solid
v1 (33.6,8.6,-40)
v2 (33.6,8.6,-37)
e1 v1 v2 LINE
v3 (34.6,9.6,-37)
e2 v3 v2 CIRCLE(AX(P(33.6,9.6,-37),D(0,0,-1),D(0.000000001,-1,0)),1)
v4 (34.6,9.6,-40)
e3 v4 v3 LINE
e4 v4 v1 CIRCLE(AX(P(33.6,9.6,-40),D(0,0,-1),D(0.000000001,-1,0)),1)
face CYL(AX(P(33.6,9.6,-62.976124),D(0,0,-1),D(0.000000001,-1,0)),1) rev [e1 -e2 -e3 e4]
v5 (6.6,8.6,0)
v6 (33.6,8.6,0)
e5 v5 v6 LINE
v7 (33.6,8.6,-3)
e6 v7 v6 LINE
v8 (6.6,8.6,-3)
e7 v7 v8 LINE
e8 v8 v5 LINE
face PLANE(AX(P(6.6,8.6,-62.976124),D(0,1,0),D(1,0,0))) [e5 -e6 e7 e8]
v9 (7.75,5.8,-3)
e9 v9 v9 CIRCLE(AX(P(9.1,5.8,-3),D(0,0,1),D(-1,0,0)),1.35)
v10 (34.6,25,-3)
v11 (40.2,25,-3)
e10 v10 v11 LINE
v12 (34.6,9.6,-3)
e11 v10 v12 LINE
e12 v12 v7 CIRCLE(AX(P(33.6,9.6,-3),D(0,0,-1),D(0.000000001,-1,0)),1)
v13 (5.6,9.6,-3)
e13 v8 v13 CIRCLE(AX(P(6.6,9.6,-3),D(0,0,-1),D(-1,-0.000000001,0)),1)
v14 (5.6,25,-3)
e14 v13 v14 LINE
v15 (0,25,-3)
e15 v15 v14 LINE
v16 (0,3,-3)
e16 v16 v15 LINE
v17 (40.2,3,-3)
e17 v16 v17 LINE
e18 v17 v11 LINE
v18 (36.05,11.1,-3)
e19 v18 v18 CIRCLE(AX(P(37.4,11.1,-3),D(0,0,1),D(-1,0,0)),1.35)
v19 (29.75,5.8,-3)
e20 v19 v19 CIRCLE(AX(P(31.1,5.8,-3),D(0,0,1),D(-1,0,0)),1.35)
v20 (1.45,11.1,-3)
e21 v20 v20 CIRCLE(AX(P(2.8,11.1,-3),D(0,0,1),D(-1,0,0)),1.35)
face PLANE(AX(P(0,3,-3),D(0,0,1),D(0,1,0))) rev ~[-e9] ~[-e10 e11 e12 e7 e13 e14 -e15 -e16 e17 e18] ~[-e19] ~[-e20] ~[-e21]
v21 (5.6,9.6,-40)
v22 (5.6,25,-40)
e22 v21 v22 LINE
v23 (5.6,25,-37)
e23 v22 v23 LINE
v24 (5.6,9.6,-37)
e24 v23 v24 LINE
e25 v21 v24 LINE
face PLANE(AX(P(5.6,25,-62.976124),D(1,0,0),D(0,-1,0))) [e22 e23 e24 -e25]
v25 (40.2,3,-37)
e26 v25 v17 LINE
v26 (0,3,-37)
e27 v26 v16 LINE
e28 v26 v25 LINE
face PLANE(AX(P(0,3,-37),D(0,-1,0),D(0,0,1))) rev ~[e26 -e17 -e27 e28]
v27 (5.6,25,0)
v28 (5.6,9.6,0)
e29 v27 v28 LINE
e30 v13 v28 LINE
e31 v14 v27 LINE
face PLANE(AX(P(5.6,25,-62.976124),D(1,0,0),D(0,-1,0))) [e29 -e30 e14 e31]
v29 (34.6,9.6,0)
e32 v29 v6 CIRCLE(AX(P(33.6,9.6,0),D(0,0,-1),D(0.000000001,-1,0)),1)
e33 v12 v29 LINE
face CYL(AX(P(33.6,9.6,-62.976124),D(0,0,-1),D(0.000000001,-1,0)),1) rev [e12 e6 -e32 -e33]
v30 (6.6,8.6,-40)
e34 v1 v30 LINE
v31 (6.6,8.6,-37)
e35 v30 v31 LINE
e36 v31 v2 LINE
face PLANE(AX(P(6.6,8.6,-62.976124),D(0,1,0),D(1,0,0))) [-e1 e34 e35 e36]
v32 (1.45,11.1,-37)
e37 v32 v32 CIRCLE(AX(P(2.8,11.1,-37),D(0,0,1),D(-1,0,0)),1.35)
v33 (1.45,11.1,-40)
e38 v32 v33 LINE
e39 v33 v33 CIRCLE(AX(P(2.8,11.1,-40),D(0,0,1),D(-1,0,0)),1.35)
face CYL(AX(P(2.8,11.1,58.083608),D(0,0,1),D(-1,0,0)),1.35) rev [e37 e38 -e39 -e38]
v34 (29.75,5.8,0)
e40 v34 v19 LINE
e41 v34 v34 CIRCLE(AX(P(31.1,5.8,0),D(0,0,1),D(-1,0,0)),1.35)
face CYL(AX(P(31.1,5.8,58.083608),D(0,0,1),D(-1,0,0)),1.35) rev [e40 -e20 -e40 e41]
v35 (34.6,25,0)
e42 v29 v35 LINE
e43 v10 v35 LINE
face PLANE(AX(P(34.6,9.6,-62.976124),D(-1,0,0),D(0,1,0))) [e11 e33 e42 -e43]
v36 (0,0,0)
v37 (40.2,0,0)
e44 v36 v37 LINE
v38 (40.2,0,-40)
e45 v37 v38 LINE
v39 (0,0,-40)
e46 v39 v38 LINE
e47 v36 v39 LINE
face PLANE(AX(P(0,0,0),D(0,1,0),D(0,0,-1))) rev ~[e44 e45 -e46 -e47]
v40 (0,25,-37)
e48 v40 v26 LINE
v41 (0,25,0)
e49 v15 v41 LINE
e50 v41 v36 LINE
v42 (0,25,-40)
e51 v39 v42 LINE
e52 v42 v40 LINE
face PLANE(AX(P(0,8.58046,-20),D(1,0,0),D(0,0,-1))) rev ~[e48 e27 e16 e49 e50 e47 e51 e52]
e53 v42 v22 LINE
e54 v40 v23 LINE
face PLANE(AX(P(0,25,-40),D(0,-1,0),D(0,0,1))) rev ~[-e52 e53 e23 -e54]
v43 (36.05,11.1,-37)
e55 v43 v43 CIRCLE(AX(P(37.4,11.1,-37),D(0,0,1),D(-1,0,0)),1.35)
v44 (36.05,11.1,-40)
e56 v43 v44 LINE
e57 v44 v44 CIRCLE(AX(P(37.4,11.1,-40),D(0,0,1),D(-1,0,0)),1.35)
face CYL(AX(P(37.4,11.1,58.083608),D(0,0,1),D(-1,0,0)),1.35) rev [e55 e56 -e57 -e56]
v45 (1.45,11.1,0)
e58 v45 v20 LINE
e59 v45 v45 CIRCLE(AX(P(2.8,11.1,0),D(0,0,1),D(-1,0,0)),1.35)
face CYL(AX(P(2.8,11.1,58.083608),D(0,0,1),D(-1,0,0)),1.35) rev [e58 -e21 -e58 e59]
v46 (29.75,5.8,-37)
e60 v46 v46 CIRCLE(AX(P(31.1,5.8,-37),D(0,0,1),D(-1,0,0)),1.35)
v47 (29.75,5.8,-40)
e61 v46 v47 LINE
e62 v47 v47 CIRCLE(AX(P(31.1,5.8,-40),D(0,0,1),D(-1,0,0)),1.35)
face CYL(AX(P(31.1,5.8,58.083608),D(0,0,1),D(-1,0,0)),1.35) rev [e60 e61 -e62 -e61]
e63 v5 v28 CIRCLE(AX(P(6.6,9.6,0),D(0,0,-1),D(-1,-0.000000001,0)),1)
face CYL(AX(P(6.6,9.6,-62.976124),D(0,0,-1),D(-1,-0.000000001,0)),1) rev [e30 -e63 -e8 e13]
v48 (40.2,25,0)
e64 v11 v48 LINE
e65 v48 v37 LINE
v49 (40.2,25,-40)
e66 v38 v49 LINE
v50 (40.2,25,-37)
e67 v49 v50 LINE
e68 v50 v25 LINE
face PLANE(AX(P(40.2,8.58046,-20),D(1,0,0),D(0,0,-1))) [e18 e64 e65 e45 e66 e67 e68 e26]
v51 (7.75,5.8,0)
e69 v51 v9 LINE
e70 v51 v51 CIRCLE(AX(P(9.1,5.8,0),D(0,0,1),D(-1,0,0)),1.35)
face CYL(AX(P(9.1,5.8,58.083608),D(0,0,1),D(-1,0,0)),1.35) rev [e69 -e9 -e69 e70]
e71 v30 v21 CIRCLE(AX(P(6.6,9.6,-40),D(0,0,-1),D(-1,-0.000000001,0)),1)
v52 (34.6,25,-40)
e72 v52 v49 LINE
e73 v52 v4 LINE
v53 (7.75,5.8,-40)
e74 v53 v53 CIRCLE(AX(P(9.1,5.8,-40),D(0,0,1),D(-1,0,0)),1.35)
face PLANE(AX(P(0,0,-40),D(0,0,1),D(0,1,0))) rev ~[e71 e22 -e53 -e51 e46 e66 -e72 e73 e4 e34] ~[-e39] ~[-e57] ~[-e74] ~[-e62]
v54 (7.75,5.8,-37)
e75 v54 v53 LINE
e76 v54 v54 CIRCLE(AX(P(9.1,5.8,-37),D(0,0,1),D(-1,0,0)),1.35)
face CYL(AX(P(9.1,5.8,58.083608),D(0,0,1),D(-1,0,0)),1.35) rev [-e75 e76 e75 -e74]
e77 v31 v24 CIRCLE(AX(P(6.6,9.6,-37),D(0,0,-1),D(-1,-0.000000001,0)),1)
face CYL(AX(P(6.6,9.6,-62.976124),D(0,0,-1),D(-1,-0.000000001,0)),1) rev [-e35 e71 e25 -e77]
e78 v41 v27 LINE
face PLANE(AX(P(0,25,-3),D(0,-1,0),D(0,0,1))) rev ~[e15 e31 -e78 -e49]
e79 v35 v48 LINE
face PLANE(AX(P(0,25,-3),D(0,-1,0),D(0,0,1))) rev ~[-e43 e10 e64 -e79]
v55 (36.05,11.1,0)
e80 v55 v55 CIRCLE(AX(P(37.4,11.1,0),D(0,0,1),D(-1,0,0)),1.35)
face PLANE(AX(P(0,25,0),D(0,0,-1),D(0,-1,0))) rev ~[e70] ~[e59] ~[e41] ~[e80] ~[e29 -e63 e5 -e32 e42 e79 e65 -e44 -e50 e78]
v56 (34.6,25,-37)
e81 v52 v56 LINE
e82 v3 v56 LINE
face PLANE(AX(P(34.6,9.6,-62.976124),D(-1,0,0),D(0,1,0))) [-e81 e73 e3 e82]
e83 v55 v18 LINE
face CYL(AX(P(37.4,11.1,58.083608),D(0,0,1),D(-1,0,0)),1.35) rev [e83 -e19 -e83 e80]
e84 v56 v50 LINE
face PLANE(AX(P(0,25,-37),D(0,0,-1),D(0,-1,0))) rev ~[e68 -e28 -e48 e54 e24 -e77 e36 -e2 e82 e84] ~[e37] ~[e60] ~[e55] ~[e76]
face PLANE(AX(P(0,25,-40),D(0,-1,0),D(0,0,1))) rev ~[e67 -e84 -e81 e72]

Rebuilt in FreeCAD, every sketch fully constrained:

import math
import FreeCAD as App
import Part
import Sketcher
Q = App.Units.Quantity

doc = App.newDocument("Part")
body = doc.addObject("PartDesign::Body", "Body")

# Sketch on YZ plane
sketch1 = body.newObject("Sketcher::SketchObject", "Sketch")
sketch1.AttachmentSupport = (doc.getObject("YZ_Plane"), [""])
sketch1.MapMode = "FlatFace"
sketch1.addGeometry(Part.LineSegment(App.Vector(25, 0, 0), App.Vector(0, 0, 0)), False)
sketch1.addGeometry(Part.LineSegment(App.Vector(0, 0, 0), App.Vector(0, -40, 0)), False)
sketch1.addGeometry(Part.LineSegment(App.Vector(0, -40, 0), App.Vector(25, -40, 0)), False)
sketch1.addGeometry(Part.LineSegment(App.Vector(25, -40, 0), App.Vector(25, -37, 0)), False)
sketch1.addGeometry(Part.LineSegment(App.Vector(25, -37, 0), App.Vector(3, -37, 0)), False)
sketch1.addGeometry(Part.LineSegment(App.Vector(3, -37, 0), App.Vector(3, -3, 0)), False)
sketch1.addGeometry(Part.LineSegment(App.Vector(3, -3, 0), App.Vector(25, -3, 0)), False)
sketch1.addGeometry(Part.LineSegment(App.Vector(25, -3, 0), App.Vector(25, 0, 0)), False)
sketch1.addConstraint(Sketcher.Constraint("Coincident", 0, 2, 1, 1))
sketch1.addConstraint(Sketcher.Constraint("Coincident", 1, 2, 2, 1))
sketch1.addConstraint(Sketcher.Constraint("Coincident", 2, 2, 3, 1))
sketch1.addConstraint(Sketcher.Constraint("Coincident", 3, 2, 4, 1))
sketch1.addConstraint(Sketcher.Constraint("Coincident", 4, 2, 5, 1))
sketch1.addConstraint(Sketcher.Constraint("Coincident", 5, 2, 6, 1))
sketch1.addConstraint(Sketcher.Constraint("Coincident", 6, 2, 7, 1))
sketch1.addConstraint(Sketcher.Constraint("Coincident", 7, 2, 0, 1))
sketch1.addConstraint(Sketcher.Constraint("Horizontal", 0))
sketch1.addConstraint(Sketcher.Constraint("Vertical", 1))
sketch1.addConstraint(Sketcher.Constraint("Horizontal", 2))
sketch1.addConstraint(Sketcher.Constraint("Vertical", 3))
sketch1.addConstraint(Sketcher.Constraint("Horizontal", 4))
sketch1.addConstraint(Sketcher.Constraint("Vertical", 5))
sketch1.addConstraint(Sketcher.Constraint("Horizontal", 6))
sketch1.addConstraint(Sketcher.Constraint("Vertical", 7))
sketch1.addConstraint(Sketcher.Constraint("Coincident", 0, 2, -1, 1))
sketch1.addConstraint(Sketcher.Constraint("Vertical", 3, 2, 6, 2))
sketch1.addConstraint(Sketcher.Constraint("Equal", 3, 7))
sketch1.addConstraint(Sketcher.Constraint("DistanceX", 0, 2, 0, 1, Q("25 mm")))
sketch1.addConstraint(Sketcher.Constraint("DistanceX", 4, 2, 4, 1, Q("22 mm")))
sketch1.addConstraint(Sketcher.Constraint("DistanceY", 1, 2, 1, 1, Q("40 mm")))
sketch1.addConstraint(Sketcher.Constraint("DistanceY", 3, 1, 3, 2, Q("3 mm")))
pad1 = body.newObject("PartDesign::Pad", "Pad")
pad1.Profile = sketch1
pad1.Length = 40.2

# Sketch on XY plane
sketch2 = body.newObject("Sketcher::SketchObject", "Sketch001")
sketch2.AttachmentSupport = (doc.getObject("XY_Plane"), [""])
sketch2.MapMode = "FlatFace"
sketch2.addGeometry(Part.LineSegment(App.Vector(5.6, 25, 0), App.Vector(5.6, 9.6, 0)), False)
sketch2.addGeometry(Part.ArcOfCircle(Part.Circle(App.Vector(6.6, 9.6, 0), App.Vector(0, 0, 1), 1), math.radians(-180), math.radians(-90)), False)
sketch2.addGeometry(Part.LineSegment(App.Vector(6.6, 8.6, 0), App.Vector(33.6, 8.6, 0)), False)
sketch2.addGeometry(Part.ArcOfCircle(Part.Circle(App.Vector(33.6, 9.6, 0), App.Vector(0, 0, 1), 1), math.radians(-90), math.radians(0)), False)
sketch2.addGeometry(Part.LineSegment(App.Vector(34.6, 9.6, 0), App.Vector(34.6, 25, 0)), False)
sketch2.addGeometry(Part.LineSegment(App.Vector(34.6, 25, 0), App.Vector(5.6, 25, 0)), False)
sketch2.addConstraint(Sketcher.Constraint("Tangent", 0, 2, 1, 1))
sketch2.addConstraint(Sketcher.Constraint("Tangent", 1, 2, 2, 1))
sketch2.addConstraint(Sketcher.Constraint("Tangent", 2, 2, 3, 1))
sketch2.addConstraint(Sketcher.Constraint("Tangent", 3, 2, 4, 1))
sketch2.addConstraint(Sketcher.Constraint("Coincident", 4, 2, 5, 1))
sketch2.addConstraint(Sketcher.Constraint("Coincident", 5, 2, 0, 1))
sketch2.addConstraint(Sketcher.Constraint("Vertical", 0))
sketch2.addConstraint(Sketcher.Constraint("Horizontal", 2))
sketch2.addConstraint(Sketcher.Constraint("Vertical", 4))
sketch2.addConstraint(Sketcher.Constraint("Horizontal", 5))
sketch2.addConstraint(Sketcher.Constraint("Equal", 1, 3))
sketch2.addConstraint(Sketcher.Constraint("Radius", 1, Q("1 mm")))
sketch2.addConstraint(Sketcher.Constraint("DistanceX", 2, 1, 2, 2, Q("27 mm")))
sketch2.addConstraint(Sketcher.Constraint("DistanceY", 0, 2, 0, 1, Q("15.4 mm")))
sketch2.addConstraint(Sketcher.Constraint("DistanceY", -1, 1, 4, 2, Q("25 mm")))
sketch2.addConstraint(Sketcher.Constraint("DistanceX", -1, 1, 1, 3, Q("6.6 mm")))
pocket1 = body.newObject("PartDesign::Pocket", "Pocket")
pocket1.Profile = sketch2
pocket1.Type = "ThroughAll"
pocket1.Midplane = True

# Sketch on XY plane
sketch3 = body.newObject("Sketcher::SketchObject", "Sketch002")
sketch3.AttachmentSupport = (doc.getObject("XY_Plane"), [""])
sketch3.MapMode = "FlatFace"
sketch3.AttachmentOffset = App.Placement(App.Vector(0, 0, -3), App.Rotation())
sketch3.addGeometry(Part.Circle(App.Vector(9.1, 5.8, 0), App.Vector(0, 0, 1), 1.4), False)
sketch3.addGeometry(Part.Circle(App.Vector(2.8, 11.1, 0), App.Vector(0, 0, 1), 1.4), False)
sketch3.addGeometry(Part.Circle(App.Vector(37.4, 11.1, 0), App.Vector(0, 0, 1), 1.4), False)
sketch3.addGeometry(Part.Circle(App.Vector(31.1, 5.8, 0), App.Vector(0, 0, 1), 1.4), False)
sketch3.addConstraint(Sketcher.Constraint("Equal", 0, 1))
sketch3.addConstraint(Sketcher.Constraint("Equal", 1, 2))
sketch3.addConstraint(Sketcher.Constraint("Equal", 2, 3))
sketch3.addConstraint(Sketcher.Constraint("Horizontal", 1, 3, 2, 3))
sketch3.addConstraint(Sketcher.Constraint("Horizontal", 0, 3, 3, 3))
sketch3.addConstraint(Sketcher.Constraint("Diameter", 0, Q("2.7 mm")))
sketch3.addConstraint(Sketcher.Constraint("DistanceX", 0, 3, 3, 3, Q("22 mm")))
sketch3.addConstraint(Sketcher.Constraint("DistanceX", -1, 1, 0, 3, Q("9.1 mm")))
sketch3.addConstraint(Sketcher.Constraint("DistanceY", -1, 1, 0, 3, Q("5.8 mm")))
sketch3.addConstraint(Sketcher.Constraint("DistanceX", -1, 1, 1, 3, Q("2.8 mm")))
sketch3.addConstraint(Sketcher.Constraint("DistanceY", -1, 1, 1, 3, Q("11.1 mm")))
sketch3.addConstraint(Sketcher.Constraint("DistanceX", -1, 1, 2, 3, Q("37.4 mm")))
pocket2 = body.newObject("PartDesign::Pocket", "Pocket001")
pocket2.Profile = sketch3
pocket2.Type = "ThroughAll"
pocket2.Midplane = True

doc.recompute()
